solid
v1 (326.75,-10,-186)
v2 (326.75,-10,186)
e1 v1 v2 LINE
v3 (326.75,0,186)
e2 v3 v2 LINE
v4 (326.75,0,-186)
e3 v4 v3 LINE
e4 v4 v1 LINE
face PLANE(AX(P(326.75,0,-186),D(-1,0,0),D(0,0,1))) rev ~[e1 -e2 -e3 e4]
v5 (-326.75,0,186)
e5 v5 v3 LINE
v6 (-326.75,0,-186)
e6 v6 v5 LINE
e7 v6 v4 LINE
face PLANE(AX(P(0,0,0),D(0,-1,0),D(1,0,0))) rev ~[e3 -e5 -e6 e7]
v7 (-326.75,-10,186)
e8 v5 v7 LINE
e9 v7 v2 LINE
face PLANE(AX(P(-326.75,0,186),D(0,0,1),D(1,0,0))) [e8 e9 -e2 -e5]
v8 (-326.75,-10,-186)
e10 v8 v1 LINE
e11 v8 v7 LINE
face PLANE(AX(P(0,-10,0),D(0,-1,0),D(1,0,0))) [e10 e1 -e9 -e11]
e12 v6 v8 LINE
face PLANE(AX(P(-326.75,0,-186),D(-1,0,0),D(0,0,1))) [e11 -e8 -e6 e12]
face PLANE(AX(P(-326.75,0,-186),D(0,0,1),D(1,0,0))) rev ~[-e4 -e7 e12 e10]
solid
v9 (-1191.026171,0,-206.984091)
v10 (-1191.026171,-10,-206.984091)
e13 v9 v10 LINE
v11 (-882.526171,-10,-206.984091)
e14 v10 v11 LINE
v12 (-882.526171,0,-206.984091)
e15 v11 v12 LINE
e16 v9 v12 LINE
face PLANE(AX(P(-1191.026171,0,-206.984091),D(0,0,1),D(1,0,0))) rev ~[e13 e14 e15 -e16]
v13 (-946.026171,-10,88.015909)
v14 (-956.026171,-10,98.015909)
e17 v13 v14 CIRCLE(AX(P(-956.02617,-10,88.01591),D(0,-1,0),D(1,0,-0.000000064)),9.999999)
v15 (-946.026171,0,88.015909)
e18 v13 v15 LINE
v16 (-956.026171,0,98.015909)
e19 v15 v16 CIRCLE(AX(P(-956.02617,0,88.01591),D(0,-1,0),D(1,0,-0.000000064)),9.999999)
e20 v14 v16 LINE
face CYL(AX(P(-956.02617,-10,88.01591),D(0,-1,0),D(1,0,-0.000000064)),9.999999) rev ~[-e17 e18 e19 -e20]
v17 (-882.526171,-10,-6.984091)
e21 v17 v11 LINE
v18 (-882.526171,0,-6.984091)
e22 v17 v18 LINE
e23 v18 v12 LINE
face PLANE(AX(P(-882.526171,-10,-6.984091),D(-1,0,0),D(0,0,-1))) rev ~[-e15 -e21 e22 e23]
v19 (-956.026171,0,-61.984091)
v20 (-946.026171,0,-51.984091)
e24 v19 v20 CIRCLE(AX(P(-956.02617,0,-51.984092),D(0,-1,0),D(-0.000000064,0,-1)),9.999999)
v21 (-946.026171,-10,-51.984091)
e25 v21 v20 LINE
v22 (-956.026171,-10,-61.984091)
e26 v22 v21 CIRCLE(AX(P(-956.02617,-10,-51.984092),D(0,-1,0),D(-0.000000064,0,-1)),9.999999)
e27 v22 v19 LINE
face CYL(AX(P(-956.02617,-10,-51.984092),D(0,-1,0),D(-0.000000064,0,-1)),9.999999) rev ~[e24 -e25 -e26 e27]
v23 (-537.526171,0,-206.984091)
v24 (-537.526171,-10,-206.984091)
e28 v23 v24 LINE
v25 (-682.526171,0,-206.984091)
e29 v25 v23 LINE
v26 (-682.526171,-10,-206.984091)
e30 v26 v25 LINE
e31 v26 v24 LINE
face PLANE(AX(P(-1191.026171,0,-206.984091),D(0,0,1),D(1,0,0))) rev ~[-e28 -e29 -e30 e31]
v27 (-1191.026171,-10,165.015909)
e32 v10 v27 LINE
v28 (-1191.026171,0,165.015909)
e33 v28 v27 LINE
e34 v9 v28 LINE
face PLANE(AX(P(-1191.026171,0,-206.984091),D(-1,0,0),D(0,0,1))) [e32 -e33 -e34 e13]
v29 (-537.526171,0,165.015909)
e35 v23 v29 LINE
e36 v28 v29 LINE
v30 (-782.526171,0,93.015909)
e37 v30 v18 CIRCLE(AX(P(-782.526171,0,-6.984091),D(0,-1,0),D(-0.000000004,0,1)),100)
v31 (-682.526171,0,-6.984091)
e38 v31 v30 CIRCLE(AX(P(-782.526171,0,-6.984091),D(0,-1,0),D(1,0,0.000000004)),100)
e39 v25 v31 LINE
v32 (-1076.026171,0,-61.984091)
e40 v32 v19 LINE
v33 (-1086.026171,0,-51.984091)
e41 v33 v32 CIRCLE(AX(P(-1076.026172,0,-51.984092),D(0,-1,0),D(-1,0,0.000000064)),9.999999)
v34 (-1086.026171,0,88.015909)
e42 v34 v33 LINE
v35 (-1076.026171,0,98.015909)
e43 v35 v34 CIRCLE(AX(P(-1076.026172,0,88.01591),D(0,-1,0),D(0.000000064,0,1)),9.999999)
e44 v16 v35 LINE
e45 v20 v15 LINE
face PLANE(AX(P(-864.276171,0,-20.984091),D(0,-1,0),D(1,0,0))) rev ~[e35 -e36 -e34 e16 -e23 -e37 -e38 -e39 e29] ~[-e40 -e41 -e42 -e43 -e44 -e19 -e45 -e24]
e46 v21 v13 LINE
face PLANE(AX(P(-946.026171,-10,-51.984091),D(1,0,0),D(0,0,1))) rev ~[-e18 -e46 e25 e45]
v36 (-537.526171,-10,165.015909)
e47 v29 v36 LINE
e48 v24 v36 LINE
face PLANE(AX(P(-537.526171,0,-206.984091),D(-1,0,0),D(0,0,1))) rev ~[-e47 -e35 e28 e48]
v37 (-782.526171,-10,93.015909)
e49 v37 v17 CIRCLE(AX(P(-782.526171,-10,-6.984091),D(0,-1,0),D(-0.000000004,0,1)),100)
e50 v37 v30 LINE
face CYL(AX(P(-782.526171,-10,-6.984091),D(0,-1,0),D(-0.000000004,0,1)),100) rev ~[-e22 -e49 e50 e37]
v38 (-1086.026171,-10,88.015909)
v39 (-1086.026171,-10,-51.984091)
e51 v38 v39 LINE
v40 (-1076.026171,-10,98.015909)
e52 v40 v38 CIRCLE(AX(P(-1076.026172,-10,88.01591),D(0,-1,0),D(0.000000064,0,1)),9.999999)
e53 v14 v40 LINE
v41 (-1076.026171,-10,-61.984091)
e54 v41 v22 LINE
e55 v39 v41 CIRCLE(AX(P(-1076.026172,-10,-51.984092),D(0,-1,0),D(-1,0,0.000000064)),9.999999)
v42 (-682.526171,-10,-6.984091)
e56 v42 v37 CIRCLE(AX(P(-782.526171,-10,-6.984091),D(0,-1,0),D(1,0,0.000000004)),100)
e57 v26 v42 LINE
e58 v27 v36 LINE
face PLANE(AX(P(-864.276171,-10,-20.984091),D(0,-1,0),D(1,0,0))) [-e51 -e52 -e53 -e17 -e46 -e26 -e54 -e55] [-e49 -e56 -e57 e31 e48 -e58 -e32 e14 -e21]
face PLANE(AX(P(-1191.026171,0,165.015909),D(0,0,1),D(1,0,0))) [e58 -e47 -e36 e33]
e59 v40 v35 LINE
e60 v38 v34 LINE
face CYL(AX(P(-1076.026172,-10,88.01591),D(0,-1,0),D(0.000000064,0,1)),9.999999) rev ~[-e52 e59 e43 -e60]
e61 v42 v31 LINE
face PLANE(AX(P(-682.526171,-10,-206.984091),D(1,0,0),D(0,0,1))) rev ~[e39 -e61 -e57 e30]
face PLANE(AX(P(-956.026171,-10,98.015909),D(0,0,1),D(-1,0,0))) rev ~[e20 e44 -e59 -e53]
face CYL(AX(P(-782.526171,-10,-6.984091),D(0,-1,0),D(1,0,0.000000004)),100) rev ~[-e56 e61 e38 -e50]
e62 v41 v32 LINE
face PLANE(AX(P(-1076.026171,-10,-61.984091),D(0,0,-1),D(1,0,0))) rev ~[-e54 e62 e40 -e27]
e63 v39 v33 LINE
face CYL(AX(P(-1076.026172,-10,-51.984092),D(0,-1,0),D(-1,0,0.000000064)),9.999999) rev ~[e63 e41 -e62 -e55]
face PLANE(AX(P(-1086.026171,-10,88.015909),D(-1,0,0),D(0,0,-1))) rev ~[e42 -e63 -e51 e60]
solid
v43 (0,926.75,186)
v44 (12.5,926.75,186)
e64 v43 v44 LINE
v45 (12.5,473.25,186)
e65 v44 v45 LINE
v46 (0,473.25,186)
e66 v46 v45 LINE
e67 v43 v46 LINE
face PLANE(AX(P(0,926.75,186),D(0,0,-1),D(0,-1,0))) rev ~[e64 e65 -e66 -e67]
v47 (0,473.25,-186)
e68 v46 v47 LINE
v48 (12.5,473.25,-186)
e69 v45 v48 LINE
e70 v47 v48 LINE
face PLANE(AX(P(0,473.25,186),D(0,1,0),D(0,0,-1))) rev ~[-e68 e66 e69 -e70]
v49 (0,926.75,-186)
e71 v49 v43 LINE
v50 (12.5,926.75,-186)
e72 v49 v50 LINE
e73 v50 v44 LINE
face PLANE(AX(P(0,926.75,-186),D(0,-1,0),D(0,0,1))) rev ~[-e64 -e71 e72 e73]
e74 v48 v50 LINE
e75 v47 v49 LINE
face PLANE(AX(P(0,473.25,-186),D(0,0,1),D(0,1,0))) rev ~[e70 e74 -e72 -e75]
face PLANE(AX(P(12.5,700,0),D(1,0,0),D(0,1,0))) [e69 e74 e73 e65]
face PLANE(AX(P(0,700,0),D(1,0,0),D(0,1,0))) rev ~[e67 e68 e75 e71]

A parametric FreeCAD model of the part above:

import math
import FreeCAD as App
import Part
import Sketcher
from FreeCAD import Vector
Q = App.Units.Quantity


def add_polygon(sketch, points):
    """Adds a closed chain of lines whose ends are joined by coincident constraints."""
    first, n = sketch.GeometryCount, len(points)
    for a, b in zip(points, points[1:] + points[:1]):
        sketch.addGeometry(Part.LineSegment(App.Vector(*a, 0), App.Vector(*b, 0)), False)
    for i in range(n):
        sketch.addConstraint(Sketcher.Constraint("Coincident", first + i, 2, first + (i + 1) % n, 1))

doc = App.newDocument("Part")
params = doc.addObject("Spreadsheet::Sheet", "Params")
for row, (alias, value) in enumerate([
    ("sketch1_height", "372 mm"),
    ("sketch1_width", "653.5 mm"),
    ("pad1_length", "10 mm"),
    ("sketch2_radius", "9.999999 mm"),
    ("sketch2_radius2", "100 mm"),
    ("sketch2_width", "120 mm"),
    ("sketch2_height", "140 mm"),
    ("pocket1_length", "10 mm"),
    ("sketch3_height", "372 mm"),
    ("sketch3_width", "453.5 mm"),
    ("pad2_length", "12.5 mm"),
], start=1):
    params.set(f"A{row}", alias)
    params.set(f"B{row}", "=" + value)
    params.setAlias(f"B{row}", alias)

body = doc.addObject("PartDesign::Body", "Body")
body.AllowCompound = True

sketch1 = body.newObject("Sketcher::SketchObject", "Sketch")
sketch1.AttachmentSupport = (doc.getObject("XZ_Plane"), [""])
sketch1.MapMode = "FlatFace"
add_polygon(sketch1, [(-327, 186), (-327, -186), (327, -186), (327, 186)])
add_polygon(sketch1, [(-1191, 165), (-1191, -207), (-538, -207), (-538, 165)])
sketch1.addConstraint([
    Sketcher.Constraint("Vertical", 0),
    Sketcher.Constraint("Horizontal", 1),
    Sketcher.Constraint("Vertical", 2),
    Sketcher.Constraint("Horizontal", 3),
    Sketcher.Constraint("Vertical", 4),
    Sketcher.Constraint("Horizontal", 5),
    Sketcher.Constraint("Vertical", 6),
    Sketcher.Constraint("Horizontal", 7),
    Sketcher.Constraint("Symmetric", 0, 2, 2, 2, -1, 1),
    Sketcher.Constraint("Equal", 3, 5),
    Sketcher.Constraint("Equal", 2, 4),
    Sketcher.Constraint("DistanceY", 0, 2, 0, 1, Q("372 mm")),
    Sketcher.Constraint("DistanceX", 1, 1, 1, 2, Q("653.5 mm")),
    Sketcher.Constraint("DistanceX", 4, 2, -1, 1, Q("1191.026171 mm")),
    Sketcher.Constraint("DistanceY", 4, 2, -1, 1, Q("206.984091 mm")),
])
sketch1.setExpression("Constraints[19]", "Params.sketch1_height")
sketch1.setExpression("Constraints[20]", "Params.sketch1_width")
pad1 = body.newObject("PartDesign::Pad", "Pad")
pad1.Profile = sketch1
pad1.setExpression("Length", "Params.pad1_length")

sketch2 = body.newObject("Sketcher::SketchObject", "Sketch001")
sketch2.AttachmentSupport = (doc.getObject("XZ_Plane"), [""])
sketch2.MapMode = "FlatFace"
sketch2.AttachmentOffset = App.Placement(Vector(0, 0, 10), App.Rotation())
sketch2.addGeometry([
    Part.ArcOfCircle(Part.Circle(Vector(-956, 88, 0), Vector(0, 0, 1), 10), math.radians(0), math.radians(90)),
    Part.LineSegment(Vector(-956, 98, 0), Vector(-1076, 98, 0)),
    Part.ArcOfCircle(Part.Circle(Vector(-1076, 88, 0), Vector(0, 0, 1), 10), math.radians(90), math.radians(180)),
    Part.LineSegment(Vector(-1086, 88, 0), Vector(-1086, -52, 0)),
    Part.ArcOfCircle(Part.Circle(Vector(-1076, -52, 0), Vector(0, 0, 1), 10), math.radians(180), math.radians(270)),
    Part.LineSegment(Vector(-1076, -62, 0), Vector(-956, -62, 0)),
    Part.ArcOfCircle(Part.Circle(Vector(-956, -52, 0), Vector(0, 0, 1), 10), math.radians(-90), math.radians(0)),
    Part.LineSegment(Vector(-946, -52, 0), Vector(-946, 88, 0)),
    Part.LineSegment(Vector(-883, -7, 0), Vector(-883, -207, 0)),
    Part.LineSegment(Vector(-883, -207, 0), Vector(-683, -207, 0)),
    Part.LineSegment(Vector(-683, -207, 0), Vector(-683, -7, 0)),
    Part.ArcOfCircle(Part.Circle(Vector(-783, -7, 0), Vector(0, 0, 1), 100), math.radians(0), math.radians(90)),
    Part.ArcOfCircle(Part.Circle(Vector(-783, -7, 0), Vector(0, 0, 1), 100), math.radians(90), math.radians(180)),
], False)
sketch2.addConstraint([
    Sketcher.Constraint("Tangent", 0, 2, 1, 1),
    Sketcher.Constraint("Tangent", 1, 2, 2, 1),
    Sketcher.Constraint("Tangent", 2, 2, 3, 1),
    Sketcher.Constraint("Tangent", 3, 2, 4, 1),
    Sketcher.Constraint("Tangent", 4, 2, 5, 1),
    Sketcher.Constraint("Tangent", 5, 2, 6, 1),
    Sketcher.Constraint("Tangent", 6, 2, 7, 1),
    Sketcher.Constraint("Tangent", 7, 2, 0, 1),
    Sketcher.Constraint("Coincident", 8, 2, 9, 1),
    Sketcher.Constraint("Coincident", 9, 2, 10, 1),
    Sketcher.Constraint("Tangent", 10, 2, 11, 1),
    Sketcher.Constraint("Tangent", 11, 2, 12, 1),
    Sketcher.Constraint("Tangent", 12, 2, 8, 1),
    Sketcher.Constraint("Horizontal", 1),
    Sketcher.Constraint("Vertical", 3),
    Sketcher.Constraint("Horizontal", 5),
    Sketcher.Constraint("Vertical", 7),
    Sketcher.Constraint("Vertical", 8),
    Sketcher.Constraint("Horizontal", 9),
    Sketcher.Constraint("Vertical", 10),
    Sketcher.Constraint("Equal", 0, 2),
    Sketcher.Constraint("Equal", 2, 4),
    Sketcher.Constraint("Equal", 4, 6),
    Sketcher.Constraint("Equal", 11, 12),
    Sketcher.Constraint("Vertical", 12, 3, 11, 2),
    Sketcher.Constraint("Equal", 9, 8),
    Sketcher.Constraint("Radius", 0, Q("9.999999 mm")),
    Sketcher.Constraint("Radius", 11, Q("100 mm")),
    Sketcher.Constraint("DistanceX", 1, 2, 1, 1, Q("120 mm")),
    Sketcher.Constraint("DistanceY", 3, 2, 3, 1, Q("140 mm")),
    Sketcher.Constraint("DistanceY", 6, 3, 11, 3, Q("45 mm")),
    Sketcher.Constraint("DistanceX", 6, 3, 11, 3, Q("173.499999 mm")),
    Sketcher.Constraint("DistanceX", 0, 3, -1, 1, Q("956.02617 mm")),
    Sketcher.Constraint("DistanceY", -1, 1, 0, 3, Q("88.01591 mm")),
])
sketch2.setExpression("Constraints[26]", "Params.sketch2_radius")
sketch2.setExpression("Constraints[27]", "Params.sketch2_radius2")
sketch2.setExpression("Constraints[28]", "Params.sketch2_width")
sketch2.setExpression("Constraints[29]", "Params.sketch2_height")
pocket1 = body.newObject("PartDesign::Pocket", "Pocket")
pocket1.Profile = sketch2
pocket1.setExpression("Length", "Params.pocket1_length")
body2 = doc.addObject("PartDesign::Body", "Body001")

sketch3 = body2.newObject("Sketcher::SketchObject", "Sketch002")
sketch3.AttachmentSupport = (doc.getObject("YZ_Plane001"), [""])
sketch3.MapMode = "FlatFace"
add_polygon(sketch3, [(927, 186), (473, 186), (473, -186), (927, -186)])
sketch3.addConstraint([
    Sketcher.Constraint("Horizontal", 0),
    Sketcher.Constraint("Vertical", 1),
    Sketcher.Constraint("Horizontal", 2),
    Sketcher.Constraint("Vertical", 3),
    Sketcher.Constraint("DistanceY", 1, 2, 1, 1, Q("372 mm")),
    Sketcher.Constraint("DistanceX", 0, 2, 0, 1, Q("453.5 mm")),
    Sketcher.Constraint("DistanceY", -1, 1, 0, 2, Q("186 mm")),
    Sketcher.Constraint("DistanceX", -1, 1, 0, 2, Q("473.25 mm")),
])
sketch3.setExpression("Constraints[8]", "Params.sketch3_height")
sketch3.setExpression("Constraints[9]", "Params.sketch3_width")
pad2 = body2.newObject("PartDesign::Pad", "Pad001")
pad2.Profile = sketch3
pad2.setExpression("Length", "Params.pad2_length")

doc.recompute()
